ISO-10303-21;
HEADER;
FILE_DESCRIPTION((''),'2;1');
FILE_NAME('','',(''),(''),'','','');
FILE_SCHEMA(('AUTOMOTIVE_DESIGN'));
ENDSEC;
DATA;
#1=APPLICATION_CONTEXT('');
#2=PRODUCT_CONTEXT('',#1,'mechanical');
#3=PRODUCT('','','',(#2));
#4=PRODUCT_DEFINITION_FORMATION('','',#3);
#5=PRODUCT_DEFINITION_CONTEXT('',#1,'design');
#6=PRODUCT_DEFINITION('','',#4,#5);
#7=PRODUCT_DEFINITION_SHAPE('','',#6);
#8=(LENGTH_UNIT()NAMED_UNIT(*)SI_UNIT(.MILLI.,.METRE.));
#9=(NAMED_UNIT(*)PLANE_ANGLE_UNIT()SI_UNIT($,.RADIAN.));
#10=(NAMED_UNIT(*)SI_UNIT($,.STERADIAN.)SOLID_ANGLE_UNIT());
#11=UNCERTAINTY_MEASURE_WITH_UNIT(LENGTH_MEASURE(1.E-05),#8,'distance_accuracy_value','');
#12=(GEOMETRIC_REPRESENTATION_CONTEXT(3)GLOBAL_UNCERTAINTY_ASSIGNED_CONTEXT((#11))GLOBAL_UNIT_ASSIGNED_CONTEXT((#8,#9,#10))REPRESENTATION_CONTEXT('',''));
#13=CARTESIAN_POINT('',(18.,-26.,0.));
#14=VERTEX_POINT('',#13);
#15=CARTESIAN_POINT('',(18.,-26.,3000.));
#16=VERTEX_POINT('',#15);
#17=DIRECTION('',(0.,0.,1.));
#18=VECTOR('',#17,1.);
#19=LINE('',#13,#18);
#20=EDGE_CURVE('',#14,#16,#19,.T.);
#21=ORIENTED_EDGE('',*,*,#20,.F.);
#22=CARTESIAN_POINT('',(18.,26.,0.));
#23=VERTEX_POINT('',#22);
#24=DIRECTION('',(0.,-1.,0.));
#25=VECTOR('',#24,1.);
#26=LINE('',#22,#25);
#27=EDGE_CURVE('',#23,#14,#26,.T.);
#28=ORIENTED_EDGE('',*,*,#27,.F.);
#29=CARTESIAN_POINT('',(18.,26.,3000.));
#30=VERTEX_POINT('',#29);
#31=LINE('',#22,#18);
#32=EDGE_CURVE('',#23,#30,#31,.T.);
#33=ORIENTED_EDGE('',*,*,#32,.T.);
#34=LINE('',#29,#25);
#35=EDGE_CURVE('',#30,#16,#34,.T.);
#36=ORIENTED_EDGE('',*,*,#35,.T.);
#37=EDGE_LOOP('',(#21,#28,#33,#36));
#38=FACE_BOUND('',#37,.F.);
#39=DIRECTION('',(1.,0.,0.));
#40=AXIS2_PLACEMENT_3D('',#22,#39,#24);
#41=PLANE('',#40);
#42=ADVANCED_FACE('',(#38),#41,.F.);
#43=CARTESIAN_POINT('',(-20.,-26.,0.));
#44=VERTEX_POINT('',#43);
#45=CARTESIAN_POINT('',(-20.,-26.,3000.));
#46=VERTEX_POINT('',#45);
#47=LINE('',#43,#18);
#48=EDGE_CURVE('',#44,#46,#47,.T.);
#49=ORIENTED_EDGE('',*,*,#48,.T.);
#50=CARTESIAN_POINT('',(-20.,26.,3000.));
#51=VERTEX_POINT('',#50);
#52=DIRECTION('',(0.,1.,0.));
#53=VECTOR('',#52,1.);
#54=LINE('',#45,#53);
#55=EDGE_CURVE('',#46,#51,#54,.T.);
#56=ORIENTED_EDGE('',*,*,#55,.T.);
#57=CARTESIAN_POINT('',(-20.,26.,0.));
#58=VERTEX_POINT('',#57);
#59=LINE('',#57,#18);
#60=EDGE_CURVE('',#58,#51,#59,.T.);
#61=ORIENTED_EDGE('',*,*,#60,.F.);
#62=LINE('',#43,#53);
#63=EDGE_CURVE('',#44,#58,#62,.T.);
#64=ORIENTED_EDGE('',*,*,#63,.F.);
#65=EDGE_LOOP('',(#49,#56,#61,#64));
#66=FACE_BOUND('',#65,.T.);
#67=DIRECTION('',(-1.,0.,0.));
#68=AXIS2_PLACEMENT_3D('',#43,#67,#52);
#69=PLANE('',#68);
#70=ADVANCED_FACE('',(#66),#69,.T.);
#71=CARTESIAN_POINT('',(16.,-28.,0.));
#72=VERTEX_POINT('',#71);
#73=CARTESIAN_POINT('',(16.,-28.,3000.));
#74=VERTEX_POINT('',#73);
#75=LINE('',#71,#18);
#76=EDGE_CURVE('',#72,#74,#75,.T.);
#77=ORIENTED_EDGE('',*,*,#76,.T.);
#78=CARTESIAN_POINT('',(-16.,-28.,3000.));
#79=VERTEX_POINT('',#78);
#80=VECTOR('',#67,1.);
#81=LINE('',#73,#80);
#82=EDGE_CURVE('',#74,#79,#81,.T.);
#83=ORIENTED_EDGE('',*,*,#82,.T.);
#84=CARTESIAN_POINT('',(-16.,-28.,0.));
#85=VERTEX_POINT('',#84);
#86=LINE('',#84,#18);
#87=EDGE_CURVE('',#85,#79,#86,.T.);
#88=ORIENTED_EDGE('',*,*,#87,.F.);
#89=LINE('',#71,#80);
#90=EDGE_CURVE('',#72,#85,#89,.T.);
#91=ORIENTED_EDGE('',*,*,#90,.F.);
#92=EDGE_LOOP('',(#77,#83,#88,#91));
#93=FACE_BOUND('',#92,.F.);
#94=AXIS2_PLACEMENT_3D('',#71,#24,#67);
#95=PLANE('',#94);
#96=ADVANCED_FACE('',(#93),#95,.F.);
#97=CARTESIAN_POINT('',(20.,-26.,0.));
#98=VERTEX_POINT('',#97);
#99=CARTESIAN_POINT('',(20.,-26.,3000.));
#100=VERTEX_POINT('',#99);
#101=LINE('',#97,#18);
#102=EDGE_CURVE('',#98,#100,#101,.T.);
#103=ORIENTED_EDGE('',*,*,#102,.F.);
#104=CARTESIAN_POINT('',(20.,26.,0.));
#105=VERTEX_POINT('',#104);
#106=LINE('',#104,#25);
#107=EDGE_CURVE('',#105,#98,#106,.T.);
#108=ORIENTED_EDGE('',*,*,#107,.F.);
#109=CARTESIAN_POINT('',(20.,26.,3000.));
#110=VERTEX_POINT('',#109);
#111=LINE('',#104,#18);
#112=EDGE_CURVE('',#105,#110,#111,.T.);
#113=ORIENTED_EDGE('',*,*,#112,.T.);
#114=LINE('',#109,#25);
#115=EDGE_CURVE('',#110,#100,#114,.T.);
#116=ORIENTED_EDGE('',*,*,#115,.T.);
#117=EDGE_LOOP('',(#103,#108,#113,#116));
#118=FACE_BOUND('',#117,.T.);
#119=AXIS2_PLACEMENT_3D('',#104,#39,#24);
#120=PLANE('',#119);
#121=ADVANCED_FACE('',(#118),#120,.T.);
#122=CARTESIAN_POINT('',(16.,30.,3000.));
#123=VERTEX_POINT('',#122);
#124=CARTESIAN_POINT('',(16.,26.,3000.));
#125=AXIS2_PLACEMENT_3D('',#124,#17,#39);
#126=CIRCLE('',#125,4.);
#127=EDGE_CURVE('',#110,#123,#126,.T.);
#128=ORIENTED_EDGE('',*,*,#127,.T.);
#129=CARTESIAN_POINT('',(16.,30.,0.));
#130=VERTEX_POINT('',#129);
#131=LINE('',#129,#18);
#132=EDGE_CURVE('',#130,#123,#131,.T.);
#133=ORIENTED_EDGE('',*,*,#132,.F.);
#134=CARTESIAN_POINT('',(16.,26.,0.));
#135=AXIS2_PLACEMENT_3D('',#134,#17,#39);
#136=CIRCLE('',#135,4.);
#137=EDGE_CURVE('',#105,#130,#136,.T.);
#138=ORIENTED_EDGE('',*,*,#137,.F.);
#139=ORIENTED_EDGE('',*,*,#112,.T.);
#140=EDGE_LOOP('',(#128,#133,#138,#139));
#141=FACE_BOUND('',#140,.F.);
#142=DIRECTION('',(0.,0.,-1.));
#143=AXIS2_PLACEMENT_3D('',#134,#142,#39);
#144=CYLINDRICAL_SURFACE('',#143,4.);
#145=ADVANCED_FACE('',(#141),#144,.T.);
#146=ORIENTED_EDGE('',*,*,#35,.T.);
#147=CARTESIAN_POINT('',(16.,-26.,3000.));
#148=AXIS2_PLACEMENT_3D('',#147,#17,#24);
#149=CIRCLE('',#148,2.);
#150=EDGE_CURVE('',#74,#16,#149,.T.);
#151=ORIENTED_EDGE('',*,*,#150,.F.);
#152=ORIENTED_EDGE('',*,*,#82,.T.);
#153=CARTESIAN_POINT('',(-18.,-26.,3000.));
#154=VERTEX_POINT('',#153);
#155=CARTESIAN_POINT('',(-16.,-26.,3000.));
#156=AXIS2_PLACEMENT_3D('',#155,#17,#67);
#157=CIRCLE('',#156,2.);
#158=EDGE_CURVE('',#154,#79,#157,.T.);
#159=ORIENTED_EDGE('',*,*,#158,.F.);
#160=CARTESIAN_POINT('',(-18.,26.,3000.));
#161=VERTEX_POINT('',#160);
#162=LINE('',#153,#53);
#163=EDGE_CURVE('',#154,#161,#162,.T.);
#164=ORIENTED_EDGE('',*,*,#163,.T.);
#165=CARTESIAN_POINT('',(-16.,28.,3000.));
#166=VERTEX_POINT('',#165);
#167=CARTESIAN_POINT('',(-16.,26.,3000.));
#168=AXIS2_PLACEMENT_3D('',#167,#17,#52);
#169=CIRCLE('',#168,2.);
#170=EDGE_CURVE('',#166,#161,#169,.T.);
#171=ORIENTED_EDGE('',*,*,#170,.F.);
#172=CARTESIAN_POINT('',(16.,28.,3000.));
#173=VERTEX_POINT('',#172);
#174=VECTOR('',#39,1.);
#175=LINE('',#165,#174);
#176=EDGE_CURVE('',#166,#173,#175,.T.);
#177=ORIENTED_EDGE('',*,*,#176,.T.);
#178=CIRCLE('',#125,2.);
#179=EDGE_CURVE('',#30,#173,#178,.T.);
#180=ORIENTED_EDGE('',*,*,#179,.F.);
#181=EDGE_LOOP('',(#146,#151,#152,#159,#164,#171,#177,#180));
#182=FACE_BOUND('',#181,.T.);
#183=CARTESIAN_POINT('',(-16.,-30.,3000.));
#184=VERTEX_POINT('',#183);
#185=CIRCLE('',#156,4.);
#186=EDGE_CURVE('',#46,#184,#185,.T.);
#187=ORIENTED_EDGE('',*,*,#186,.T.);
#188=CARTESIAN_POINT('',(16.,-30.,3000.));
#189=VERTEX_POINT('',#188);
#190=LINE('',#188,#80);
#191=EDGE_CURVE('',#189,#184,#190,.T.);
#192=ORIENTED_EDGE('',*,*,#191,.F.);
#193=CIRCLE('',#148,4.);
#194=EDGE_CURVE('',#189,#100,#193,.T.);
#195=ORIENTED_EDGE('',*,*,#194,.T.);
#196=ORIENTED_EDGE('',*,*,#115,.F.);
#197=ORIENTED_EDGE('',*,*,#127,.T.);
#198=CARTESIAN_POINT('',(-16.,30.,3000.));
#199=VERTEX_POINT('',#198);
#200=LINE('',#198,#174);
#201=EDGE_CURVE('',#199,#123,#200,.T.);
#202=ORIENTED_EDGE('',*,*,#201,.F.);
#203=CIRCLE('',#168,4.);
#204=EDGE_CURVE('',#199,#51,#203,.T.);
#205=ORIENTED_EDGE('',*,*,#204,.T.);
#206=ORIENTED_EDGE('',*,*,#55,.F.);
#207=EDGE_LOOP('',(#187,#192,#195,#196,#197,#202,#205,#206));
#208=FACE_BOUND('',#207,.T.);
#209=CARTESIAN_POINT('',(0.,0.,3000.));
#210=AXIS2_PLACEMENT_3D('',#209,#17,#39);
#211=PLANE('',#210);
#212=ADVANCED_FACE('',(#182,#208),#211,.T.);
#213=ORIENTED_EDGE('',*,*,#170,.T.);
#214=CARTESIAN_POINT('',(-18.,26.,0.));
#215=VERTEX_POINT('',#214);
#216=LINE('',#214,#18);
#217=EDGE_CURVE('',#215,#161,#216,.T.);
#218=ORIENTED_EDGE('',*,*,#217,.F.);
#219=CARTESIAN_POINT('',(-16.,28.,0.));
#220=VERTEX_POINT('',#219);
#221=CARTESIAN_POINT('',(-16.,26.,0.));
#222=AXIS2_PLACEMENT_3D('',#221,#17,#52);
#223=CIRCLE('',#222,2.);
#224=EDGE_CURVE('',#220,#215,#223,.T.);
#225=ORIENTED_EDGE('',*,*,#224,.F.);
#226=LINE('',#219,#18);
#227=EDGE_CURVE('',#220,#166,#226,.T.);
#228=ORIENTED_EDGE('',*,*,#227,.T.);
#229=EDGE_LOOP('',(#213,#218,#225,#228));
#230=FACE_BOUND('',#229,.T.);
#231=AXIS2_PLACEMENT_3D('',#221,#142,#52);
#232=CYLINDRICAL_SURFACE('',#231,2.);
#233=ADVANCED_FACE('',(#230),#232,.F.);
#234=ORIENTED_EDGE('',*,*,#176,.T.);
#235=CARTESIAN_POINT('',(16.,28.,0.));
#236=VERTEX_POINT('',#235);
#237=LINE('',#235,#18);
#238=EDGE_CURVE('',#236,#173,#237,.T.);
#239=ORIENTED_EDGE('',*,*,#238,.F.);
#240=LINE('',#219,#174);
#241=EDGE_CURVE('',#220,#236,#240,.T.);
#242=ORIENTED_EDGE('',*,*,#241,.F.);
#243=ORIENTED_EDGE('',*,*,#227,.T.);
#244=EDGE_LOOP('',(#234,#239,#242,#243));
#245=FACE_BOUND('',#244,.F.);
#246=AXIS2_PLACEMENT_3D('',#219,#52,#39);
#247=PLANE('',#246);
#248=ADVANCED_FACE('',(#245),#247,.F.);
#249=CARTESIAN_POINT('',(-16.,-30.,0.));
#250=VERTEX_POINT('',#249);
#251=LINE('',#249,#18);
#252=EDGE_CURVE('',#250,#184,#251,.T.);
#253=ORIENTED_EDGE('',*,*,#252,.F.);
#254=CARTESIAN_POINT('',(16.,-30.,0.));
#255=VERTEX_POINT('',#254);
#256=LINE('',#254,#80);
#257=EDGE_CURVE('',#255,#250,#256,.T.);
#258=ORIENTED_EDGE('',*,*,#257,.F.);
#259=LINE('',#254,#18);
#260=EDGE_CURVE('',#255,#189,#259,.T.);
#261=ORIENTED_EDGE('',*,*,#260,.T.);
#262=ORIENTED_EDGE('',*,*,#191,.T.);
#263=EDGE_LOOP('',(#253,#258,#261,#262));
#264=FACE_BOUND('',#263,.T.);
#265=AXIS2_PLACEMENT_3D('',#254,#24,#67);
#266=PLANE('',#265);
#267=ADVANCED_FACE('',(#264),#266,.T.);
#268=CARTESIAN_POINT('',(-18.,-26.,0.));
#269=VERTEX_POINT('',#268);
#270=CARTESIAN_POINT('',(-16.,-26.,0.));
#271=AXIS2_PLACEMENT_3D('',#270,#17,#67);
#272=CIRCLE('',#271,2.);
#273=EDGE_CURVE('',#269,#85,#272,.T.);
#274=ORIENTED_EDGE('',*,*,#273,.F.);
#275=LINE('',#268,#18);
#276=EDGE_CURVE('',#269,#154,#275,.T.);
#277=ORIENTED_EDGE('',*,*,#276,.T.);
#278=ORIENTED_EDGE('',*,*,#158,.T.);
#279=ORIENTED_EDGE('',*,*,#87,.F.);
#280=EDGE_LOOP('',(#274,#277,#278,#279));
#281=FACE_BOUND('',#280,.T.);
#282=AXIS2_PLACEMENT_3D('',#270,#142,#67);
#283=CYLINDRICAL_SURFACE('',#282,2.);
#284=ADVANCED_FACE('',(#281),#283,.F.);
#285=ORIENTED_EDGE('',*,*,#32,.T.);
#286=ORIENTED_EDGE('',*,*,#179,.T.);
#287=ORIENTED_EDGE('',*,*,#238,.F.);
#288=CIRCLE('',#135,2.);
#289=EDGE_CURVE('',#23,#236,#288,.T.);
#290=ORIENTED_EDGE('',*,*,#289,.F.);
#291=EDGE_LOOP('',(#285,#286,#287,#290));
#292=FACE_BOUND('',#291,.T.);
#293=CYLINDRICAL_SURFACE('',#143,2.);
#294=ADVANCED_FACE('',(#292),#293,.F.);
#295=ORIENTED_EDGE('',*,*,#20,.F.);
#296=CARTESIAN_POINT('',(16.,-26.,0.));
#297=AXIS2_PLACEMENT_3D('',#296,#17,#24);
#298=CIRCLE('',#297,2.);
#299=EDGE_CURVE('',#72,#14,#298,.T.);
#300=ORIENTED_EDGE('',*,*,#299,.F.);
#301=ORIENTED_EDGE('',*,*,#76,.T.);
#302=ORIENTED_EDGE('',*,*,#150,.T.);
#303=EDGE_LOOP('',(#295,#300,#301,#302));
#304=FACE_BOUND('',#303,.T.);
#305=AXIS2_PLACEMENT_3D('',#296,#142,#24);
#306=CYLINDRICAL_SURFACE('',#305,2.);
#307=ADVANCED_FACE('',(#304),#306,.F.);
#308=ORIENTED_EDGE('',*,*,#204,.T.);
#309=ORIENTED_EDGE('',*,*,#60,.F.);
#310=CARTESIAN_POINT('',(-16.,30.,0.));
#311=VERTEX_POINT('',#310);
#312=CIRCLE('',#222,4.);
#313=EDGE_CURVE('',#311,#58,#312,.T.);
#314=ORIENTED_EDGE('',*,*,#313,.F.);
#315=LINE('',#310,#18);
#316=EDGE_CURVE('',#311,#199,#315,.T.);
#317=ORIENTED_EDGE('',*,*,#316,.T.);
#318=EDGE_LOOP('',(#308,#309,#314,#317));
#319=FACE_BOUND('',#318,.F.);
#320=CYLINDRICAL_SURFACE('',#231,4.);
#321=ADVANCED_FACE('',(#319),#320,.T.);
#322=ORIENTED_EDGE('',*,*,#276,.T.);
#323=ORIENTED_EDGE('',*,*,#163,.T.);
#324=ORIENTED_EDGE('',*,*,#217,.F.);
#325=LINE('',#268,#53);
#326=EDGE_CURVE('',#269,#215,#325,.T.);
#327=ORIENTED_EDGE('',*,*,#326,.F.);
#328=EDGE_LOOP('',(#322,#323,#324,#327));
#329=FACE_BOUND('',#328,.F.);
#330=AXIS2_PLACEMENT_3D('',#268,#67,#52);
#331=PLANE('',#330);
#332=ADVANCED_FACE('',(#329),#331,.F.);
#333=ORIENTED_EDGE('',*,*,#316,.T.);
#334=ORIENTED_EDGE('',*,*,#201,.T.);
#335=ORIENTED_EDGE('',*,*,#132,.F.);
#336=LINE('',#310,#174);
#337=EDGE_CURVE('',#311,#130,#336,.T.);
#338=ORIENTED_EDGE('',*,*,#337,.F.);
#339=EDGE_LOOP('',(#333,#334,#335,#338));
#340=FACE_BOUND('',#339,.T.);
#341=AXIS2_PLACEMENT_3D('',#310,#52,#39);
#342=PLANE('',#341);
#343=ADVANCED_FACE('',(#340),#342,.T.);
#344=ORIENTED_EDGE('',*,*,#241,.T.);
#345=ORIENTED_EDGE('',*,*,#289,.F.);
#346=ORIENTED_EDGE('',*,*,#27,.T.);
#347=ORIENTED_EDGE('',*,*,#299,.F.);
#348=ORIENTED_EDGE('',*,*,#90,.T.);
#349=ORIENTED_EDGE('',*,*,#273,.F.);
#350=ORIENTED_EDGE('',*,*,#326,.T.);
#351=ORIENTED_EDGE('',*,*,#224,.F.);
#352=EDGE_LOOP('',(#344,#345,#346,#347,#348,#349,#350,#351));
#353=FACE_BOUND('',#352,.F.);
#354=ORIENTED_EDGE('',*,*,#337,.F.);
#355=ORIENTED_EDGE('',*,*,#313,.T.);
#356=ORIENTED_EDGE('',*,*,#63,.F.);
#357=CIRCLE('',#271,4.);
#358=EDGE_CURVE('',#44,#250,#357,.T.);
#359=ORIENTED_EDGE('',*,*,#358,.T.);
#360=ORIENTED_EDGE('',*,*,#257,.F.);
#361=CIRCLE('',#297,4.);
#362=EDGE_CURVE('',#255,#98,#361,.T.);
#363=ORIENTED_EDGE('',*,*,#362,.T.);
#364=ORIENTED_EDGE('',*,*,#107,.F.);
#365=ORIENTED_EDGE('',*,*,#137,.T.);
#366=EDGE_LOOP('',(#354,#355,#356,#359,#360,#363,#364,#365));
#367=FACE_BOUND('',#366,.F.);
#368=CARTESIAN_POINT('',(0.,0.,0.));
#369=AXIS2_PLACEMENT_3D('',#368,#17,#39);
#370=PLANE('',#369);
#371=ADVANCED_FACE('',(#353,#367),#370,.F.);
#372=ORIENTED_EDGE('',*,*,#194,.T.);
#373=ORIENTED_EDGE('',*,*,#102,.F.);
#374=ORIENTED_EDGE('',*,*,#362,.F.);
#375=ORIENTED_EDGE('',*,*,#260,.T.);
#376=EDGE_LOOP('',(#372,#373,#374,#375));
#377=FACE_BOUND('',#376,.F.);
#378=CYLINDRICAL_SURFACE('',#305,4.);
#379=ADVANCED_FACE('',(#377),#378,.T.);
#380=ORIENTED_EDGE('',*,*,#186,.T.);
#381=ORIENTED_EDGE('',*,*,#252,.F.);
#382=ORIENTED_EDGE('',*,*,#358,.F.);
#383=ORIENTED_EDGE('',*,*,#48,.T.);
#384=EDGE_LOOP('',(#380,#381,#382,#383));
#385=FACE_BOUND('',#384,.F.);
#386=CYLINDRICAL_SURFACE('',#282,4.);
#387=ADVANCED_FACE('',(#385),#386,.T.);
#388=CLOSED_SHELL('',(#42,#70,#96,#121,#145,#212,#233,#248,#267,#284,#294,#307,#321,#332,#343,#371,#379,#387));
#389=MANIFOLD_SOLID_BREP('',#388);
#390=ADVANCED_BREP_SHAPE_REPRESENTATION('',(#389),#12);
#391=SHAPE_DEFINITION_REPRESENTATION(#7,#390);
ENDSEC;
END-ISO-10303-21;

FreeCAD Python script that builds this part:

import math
import FreeCAD as App
import Part
import Sketcher
from FreeCAD import Vector

doc = App.newDocument("Part")
body = doc.addObject("PartDesign::Body", "Body")

sketch1 = body.newObject("Sketcher::SketchObject", "Sketch")
sketch1.AttachmentSupport = (doc.getObject("XY_Plane"), [""])
sketch1.MapMode = "FlatFace"
sketch1.addGeometry(Part.LineSegment(Vector(-20, 26, 0), Vector(-20, -26, 0)), False)
sketch1.addGeometry(Part.ArcOfCircle(Part.Circle(Vector(-16, -26, 0), Vector(0, 0, 1), 4), math.radians(180), math.radians(270)), False)
sketch1.addGeometry(Part.LineSegment(Vector(-16, -30, 0), Vector(16, -30, 0)), False)
sketch1.addGeometry(Part.ArcOfCircle(Part.Circle(Vector(16, -26, 0), Vector(0, 0, 1), 4), math.radians(-90), math.radians(0)), False)
sketch1.addGeometry(Part.LineSegment(Vector(20, -26, 0), Vector(20, 26, 0)), False)
sketch1.addGeometry(Part.ArcOfCircle(Part.Circle(Vector(16, 26, 0), Vector(0, 0, 1), 4), math.radians(0), math.radians(90)), False)
sketch1.addGeometry(Part.LineSegment(Vector(16, 30, 0), Vector(-16, 30, 0)), False)
sketch1.addGeometry(Part.ArcOfCircle(Part.Circle(Vector(-16, 26, 0), Vector(0, 0, 1), 4), math.radians(90), math.radians(180)), False)
sketch1.addGeometry(Part.ArcOfCircle(Part.Circle(Vector(-16, 26, 0), Vector(0, 0, 1), 2), math.radians(90), math.radians(180)), False)
sketch1.addGeometry(Part.LineSegment(Vector(-16, 28, 0), Vector(16, 28, 0)), False)
sketch1.addGeometry(Part.ArcOfCircle(Part.Circle(Vector(16, 26, 0), Vector(0, 0, 1), 2), math.radians(0), math.radians(90)), False)
sketch1.addGeometry(Part.LineSegment(Vector(18, 26, 0), Vector(18, -26, 0)), False)
sketch1.addGeometry(Part.ArcOfCircle(Part.Circle(Vector(16, -26, 0), Vector(0, 0, 1), 2), math.radians(-90), math.radians(0)), False)
sketch1.addGeometry(Part.LineSegment(Vector(16, -28, 0), Vector(-16, -28, 0)), False)
sketch1.addGeometry(Part.ArcOfCircle(Part.Circle(Vector(-16, -26, 0), Vector(0, 0, 1), 2), math.radians(180), math.radians(270)), False)
sketch1.addGeometry(Part.LineSegment(Vector(-18, -26, 0), Vector(-18, 26, 0)), False)
sketch1.addConstraint(Sketcher.Constraint("Tangent", 0, 2, 1, 1))
sketch1.addConstraint(Sketcher.Constraint("Tangent", 1, 2, 2, 1))
sketch1.addConstraint(Sketcher.Constraint("Tangent", 2, 2, 3, 1))
sketch1.addConstraint(Sketcher.Constraint("Tangent", 3, 2, 4, 1))
sketch1.addConstraint(Sketcher.Constraint("Tangent", 4, 2, 5, 1))
sketch1.addConstraint(Sketcher.Constraint("Tangent", 5, 2, 6, 1))
sketch1.addConstraint(Sketcher.Constraint("Tangent", 6, 2, 7, 1))
sketch1.addConstraint(Sketcher.Constraint("Tangent", 7, 2, 0, 1))
sketch1.addConstraint(Sketcher.Constraint("Tangent", 8, 1, 9, 1))
sketch1.addConstraint(Sketcher.Constraint("Tangent", 9, 2, 10, 2))
sketch1.addConstraint(Sketcher.Constraint("Tangent", 10, 1, 11, 1))
sketch1.addConstraint(Sketcher.Constraint("Tangent", 11, 2, 12, 2))
sketch1.addConstraint(Sketcher.Constraint("Tangent", 12, 1, 13, 1))
sketch1.addConstraint(Sketcher.Constraint("Tangent", 13, 2, 14, 2))
sketch1.addConstraint(Sketcher.Constraint("Tangent", 14, 1, 15, 1))
sketch1.addConstraint(Sketcher.Constraint("Tangent", 15, 2, 8, 2))
sketch1.addConstraint(Sketcher.Constraint("Vertical", 0))
sketch1.addConstraint(Sketcher.Constraint("Horizontal", 2))
sketch1.addConstraint(Sketcher.Constraint("Vertical", 4))
sketch1.addConstraint(Sketcher.Constraint("Horizontal", 6))
sketch1.addConstraint(Sketcher.Constraint("Horizontal", 9))
sketch1.addConstraint(Sketcher.Constraint("Vertical", 11))
sketch1.addConstraint(Sketcher.Constraint("Horizontal", 13))
sketch1.addConstraint(Sketcher.Constraint("Vertical", 15))
sketch1.addConstraint(Sketcher.Constraint("Coincident", 8, 3, 7, 3))
sketch1.addConstraint(Sketcher.Constraint("Coincident", 10, 3, 5, 3))
sketch1.addConstraint(Sketcher.Constraint("Coincident", 12, 3, 3, 3))
sketch1.addConstraint(Sketcher.Constraint("Equal", 1, 3))
sketch1.addConstraint(Sketcher.Constraint("Equal", 3, 5))
sketch1.addConstraint(Sketcher.Constraint("Equal", 5, 7))
sketch1.addConstraint(Sketcher.Constraint("Equal", 12, 14))
sketch1.addConstraint(Sketcher.Constraint("Symmetric", 1, 3, 5, 3, -1, 1))
sketch1.addConstraint(Sketcher.Constraint("Radius", 1, 4.0))
sketch1.addConstraint(Sketcher.Constraint("Radius", 8, 2.0))
sketch1.addConstraint(Sketcher.Constraint("DistanceX", 0, 2, -1, 1, 20.0))
sketch1.addConstraint(Sketcher.Constraint("DistanceY", 1, 2, -1, 1, 30.0))
pad1 = body.newObject("PartDesign::Pad", "Pad")
pad1.Profile = sketch1
pad1.Length = 3000

doc.recompute()
